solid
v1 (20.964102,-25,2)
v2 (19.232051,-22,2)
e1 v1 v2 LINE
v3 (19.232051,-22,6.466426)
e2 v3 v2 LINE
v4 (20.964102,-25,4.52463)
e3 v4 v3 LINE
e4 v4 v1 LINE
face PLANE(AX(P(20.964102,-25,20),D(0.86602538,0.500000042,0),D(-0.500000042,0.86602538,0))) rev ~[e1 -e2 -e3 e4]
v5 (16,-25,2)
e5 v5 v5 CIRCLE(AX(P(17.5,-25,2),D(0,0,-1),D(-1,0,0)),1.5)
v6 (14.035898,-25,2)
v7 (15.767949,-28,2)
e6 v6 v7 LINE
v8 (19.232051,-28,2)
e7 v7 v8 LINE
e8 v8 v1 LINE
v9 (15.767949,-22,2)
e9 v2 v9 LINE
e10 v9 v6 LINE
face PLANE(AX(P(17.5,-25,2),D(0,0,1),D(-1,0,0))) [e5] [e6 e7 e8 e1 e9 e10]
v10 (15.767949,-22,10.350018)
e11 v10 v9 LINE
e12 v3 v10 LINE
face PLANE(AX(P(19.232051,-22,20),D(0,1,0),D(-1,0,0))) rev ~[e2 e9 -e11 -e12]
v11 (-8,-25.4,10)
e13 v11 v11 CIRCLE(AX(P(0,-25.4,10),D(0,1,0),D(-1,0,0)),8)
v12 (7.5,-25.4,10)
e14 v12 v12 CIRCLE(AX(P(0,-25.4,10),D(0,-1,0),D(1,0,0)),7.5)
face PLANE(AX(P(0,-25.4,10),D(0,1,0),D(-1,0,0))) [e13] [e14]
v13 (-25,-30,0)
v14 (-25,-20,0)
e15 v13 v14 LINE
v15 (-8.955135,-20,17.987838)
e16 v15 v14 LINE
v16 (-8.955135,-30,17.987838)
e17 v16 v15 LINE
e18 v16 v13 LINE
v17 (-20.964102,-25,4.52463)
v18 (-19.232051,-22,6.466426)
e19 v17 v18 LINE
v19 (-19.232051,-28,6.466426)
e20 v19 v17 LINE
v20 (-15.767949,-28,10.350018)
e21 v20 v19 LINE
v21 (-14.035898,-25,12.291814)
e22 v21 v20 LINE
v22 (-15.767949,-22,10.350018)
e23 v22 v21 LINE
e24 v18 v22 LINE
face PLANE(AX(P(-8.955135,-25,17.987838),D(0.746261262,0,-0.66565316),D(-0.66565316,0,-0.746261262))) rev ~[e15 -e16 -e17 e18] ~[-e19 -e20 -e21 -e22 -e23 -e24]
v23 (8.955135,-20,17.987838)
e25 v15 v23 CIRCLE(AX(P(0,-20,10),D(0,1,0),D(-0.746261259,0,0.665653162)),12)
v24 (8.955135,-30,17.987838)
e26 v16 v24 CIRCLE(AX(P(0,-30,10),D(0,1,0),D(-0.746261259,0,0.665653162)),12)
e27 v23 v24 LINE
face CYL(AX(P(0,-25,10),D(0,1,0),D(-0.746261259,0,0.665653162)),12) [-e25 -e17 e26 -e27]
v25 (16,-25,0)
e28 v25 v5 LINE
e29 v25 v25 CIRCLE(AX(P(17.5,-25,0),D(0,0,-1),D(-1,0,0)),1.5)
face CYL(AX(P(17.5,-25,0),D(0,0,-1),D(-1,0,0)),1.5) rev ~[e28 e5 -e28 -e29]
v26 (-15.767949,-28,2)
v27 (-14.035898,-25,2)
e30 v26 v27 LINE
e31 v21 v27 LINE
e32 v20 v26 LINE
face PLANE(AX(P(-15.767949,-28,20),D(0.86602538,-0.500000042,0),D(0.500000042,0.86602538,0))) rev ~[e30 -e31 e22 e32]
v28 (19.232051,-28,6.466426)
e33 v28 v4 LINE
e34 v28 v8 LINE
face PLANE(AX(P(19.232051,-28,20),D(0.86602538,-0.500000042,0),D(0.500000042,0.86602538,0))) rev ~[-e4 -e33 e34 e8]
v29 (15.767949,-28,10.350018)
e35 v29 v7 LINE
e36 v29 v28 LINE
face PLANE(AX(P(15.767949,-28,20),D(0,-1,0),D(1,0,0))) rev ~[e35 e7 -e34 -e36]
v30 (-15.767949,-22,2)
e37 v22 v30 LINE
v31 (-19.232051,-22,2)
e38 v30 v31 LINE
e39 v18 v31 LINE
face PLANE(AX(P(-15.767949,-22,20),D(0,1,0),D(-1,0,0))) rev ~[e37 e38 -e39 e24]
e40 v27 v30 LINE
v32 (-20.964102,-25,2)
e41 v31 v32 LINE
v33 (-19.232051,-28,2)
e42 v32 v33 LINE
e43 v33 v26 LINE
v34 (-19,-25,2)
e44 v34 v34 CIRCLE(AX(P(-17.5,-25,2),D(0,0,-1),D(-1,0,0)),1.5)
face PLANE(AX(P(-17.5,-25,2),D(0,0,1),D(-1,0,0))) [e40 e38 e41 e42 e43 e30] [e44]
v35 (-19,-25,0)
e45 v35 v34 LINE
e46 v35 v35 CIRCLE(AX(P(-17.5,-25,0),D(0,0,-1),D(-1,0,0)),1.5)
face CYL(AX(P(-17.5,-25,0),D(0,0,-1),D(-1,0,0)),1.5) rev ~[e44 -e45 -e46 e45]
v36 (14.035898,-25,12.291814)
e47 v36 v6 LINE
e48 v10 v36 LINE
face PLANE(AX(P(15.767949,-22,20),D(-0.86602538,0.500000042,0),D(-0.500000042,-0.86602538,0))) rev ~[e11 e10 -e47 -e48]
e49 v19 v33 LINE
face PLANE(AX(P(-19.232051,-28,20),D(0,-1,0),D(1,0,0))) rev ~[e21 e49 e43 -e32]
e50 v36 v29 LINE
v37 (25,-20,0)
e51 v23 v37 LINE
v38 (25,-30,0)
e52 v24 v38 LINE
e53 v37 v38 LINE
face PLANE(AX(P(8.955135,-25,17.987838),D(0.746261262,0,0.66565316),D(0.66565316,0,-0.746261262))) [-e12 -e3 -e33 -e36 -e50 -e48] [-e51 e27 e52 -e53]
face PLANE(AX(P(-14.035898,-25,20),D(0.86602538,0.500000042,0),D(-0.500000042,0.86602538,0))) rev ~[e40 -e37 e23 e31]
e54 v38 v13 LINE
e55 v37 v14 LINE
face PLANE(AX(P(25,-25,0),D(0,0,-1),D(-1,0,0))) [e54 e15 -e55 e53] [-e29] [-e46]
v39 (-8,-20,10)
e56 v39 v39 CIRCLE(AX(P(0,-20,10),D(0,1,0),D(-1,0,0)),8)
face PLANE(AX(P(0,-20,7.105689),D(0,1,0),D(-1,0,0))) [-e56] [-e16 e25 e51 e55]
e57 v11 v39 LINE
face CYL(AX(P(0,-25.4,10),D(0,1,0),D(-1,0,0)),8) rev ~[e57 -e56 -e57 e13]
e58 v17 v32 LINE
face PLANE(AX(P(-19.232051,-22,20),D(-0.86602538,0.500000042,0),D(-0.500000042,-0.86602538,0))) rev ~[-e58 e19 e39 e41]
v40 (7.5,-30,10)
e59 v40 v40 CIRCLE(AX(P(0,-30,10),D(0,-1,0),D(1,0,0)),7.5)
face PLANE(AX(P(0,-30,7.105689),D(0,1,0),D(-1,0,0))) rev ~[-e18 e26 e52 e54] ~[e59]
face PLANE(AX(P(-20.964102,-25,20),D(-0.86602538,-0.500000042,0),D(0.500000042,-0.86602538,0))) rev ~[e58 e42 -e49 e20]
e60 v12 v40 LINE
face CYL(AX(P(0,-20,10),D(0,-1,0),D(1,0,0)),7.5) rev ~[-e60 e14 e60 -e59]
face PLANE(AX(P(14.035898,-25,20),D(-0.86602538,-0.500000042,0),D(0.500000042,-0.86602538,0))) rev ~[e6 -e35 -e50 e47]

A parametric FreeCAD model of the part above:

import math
import FreeCAD as App
import Part
import Sketcher
Q = App.Units.Quantity

doc = App.newDocument("Part")
body = doc.addObject("PartDesign::Body", "Body")

# Sketch on XZ plane
sketch1 = doc.addObject("Sketcher::SketchObject", "Sketch")
body.addObject(sketch1)
sketch1.AttachmentSupport = (doc.XZ_Plane, [""])
sketch1.MapMode = "FlatFace"
sketch1.addGeometry(Part.LineSegment(App.Vector(-25, 0, 0), App.Vector(25, 0, 0)), False)
sketch1.addGeometry(Part.LineSegment(App.Vector(25, 0, 0), App.Vector(8.955135, 17.987838, 0)), False)
sketch1.addGeometry(Part.ArcOfCircle(Part.Circle(App.Vector(0, 10, 0), App.Vector(0, 0, 1), 12), math.radians(41.732454), math.radians(138.267546)), False)
sketch1.addGeometry(Part.LineSegment(App.Vector(-8.955135, 17.987838, 0), App.Vector(-25, 0, 0)), False)
sketch1.addConstraint(Sketcher.Constraint("Coincident", 0, 2, 1, 1))
sketch1.addConstraint(Sketcher.Constraint("Tangent", 1, 2, 2, 1))
sketch1.addConstraint(Sketcher.Constraint("Tangent", 2, 2, 3, 1))
sketch1.addConstraint(Sketcher.Constraint("Coincident", 3, 2, 0, 1))
sketch1.addConstraint(Sketcher.Constraint("Horizontal", 0))
sketch1.addConstraint(Sketcher.Constraint("Symmetric", 0, 2, 3, 2, -1, 1))
sketch1.addConstraint(Sketcher.Constraint("PointOnObject", 2, 3, -2))
sketch1.addConstraint(Sketcher.Constraint("Radius", 2, Q("12 mm")))
sketch1.addConstraint(Sketcher.Constraint("DistanceX", 0, 1, 0, 2, Q("50 mm")))
sketch1.addConstraint(Sketcher.Constraint("DistanceY", -1, 1, 2, 3, Q("10 mm")))
pad1 = doc.addObject("PartDesign::Pad", "Pad")
body.addObject(pad1)
pad1.Profile = sketch1
pad1.Length = 10
pad1.Midplane = True

# Sketch on XZ plane
sketch2 = doc.addObject("Sketcher::SketchObject", "Sketch001")
body.addObject(sketch2)
sketch2.AttachmentSupport = (doc.XZ_Plane, [""])
sketch2.MapMode = "FlatFace"
sketch2.AttachmentOffset = App.Placement(App.Vector(0, 0, 5), App.Rotation())
sketch2.addGeometry(Part.Circle(App.Vector(0, 10, 0), App.Vector(0, 0, 1), 7.5), False)
sketch2.addConstraint(Sketcher.Constraint("PointOnObject", 0, 3, -2))
sketch2.addConstraint(Sketcher.Constraint("Diameter", 0, Q("15 mm")))
sketch2.addConstraint(Sketcher.Constraint("DistanceY", -1, 1, 0, 3, Q("10 mm")))
doc.recompute()
hole = doc.addObject("PartDesign::Hole", "Hole")
body.addObject(hole)
hole.Profile = sketch2
hole.ThreadType = "None"
hole.Diameter = 15
hole.DepthType = "ThroughAll"
hole.HoleCutType = "Counterbore"
hole.HoleCutDiameter = 16
hole.HoleCutDepth = 5.4

# Sketch on XY plane
sketch3 = doc.addObject("Sketcher::SketchObject", "Sketch002")
body.addObject(sketch3)
sketch3.AttachmentSupport = (doc.XY_Plane, [""])
sketch3.MapMode = "FlatFace"
sketch3.addGeometry(Part.Circle(App.Vector(-17.5, 0, 0), App.Vector(0, 0, 1), 1.5), False)
sketch3.addGeometry(Part.Circle(App.Vector(17.5, 0, 0), App.Vector(0, 0, 1), 1.5), False)
sketch3.addConstraint(Sketcher.Constraint("Equal", 0, 1))
sketch3.addConstraint(Sketcher.Constraint("Symmetric", 0, 3, 1, 3, -1, 1))
sketch3.addConstraint(Sketcher.Constraint("PointOnObject", 0, 3, -1))
sketch3.addConstraint(Sketcher.Constraint("Diameter", 0, Q("3 mm")))
sketch3.addConstraint(Sketcher.Constraint("DistanceX", 0, 3, 1, 3, Q("35 mm")))
pocket1 = doc.addObject("PartDesign::Pocket", "Pocket")
body.addObject(pocket1)
pocket1.Profile = sketch3
pocket1.Length = 25
pocket1.Reversed = True

# Sketch on XY plane
sketch4 = doc.addObject("Sketcher::SketchObject", "Sketch003")
body.addObject(sketch4)
sketch4.AttachmentSupport = (doc.XY_Plane, [""])
sketch4.MapMode = "FlatFace"
sketch4.AttachmentOffset = App.Placement(App.Vector(0, 0, 20), App.Rotation())
sketch4.addGeometry(Part.LineSegment(App.Vector(-15.767949, 3, 0), App.Vector(-19.232051, 3, 0)), False)
sketch4.addGeometry(Part.LineSegment(App.Vector(-19.232051, 3, 0), App.Vector(-20.964102, 0, 0)), False)
sketch4.addGeometry(Part.LineSegment(App.Vector(-20.964102, 0, 0), App.Vector(-19.232051, -3, 0)), False)
sketch4.addGeometry(Part.LineSegment(App.Vector(-19.232051, -3, 0), App.Vector(-15.767949, -3, 0)), False)
sketch4.addGeometry(Part.LineSegment(App.Vector(-15.767949, -3, 0), App.Vector(-14.035898, 0, 0)), False)
sketch4.addGeometry(Part.LineSegment(App.Vector(-14.035898, 0, 0), App.Vector(-15.767949, 3, 0)), False)
sketch4.addGeometry(Part.LineSegment(App.Vector(15.767949, 3, 0), App.Vector(14.035898, 0, 0)), False)
sketch4.addGeometry(Part.LineSegment(App.Vector(14.035898, 0, 0), App.Vector(15.767949, -3, 0)), False)
sketch4.addGeometry(Part.LineSegment(App.Vector(15.767949, -3, 0), App.Vector(19.232051, -3, 0)), False)
sketch4.addGeometry(Part.LineSegment(App.Vector(19.232051, -3, 0), App.Vector(20.964102, 0, 0)), False)
sketch4.addGeometry(Part.LineSegment(App.Vector(20.964102, 0, 0), App.Vector(19.232051, 3, 0)), False)
sketch4.addGeometry(Part.LineSegment(App.Vector(19.232051, 3, 0), App.Vector(15.767949, 3, 0)), False)
sketch4.addConstraint(Sketcher.Constraint("Coincident", 0, 2, 1, 1))
sketch4.addConstraint(Sketcher.Constraint("Coincident", 1, 2, 2, 1))
sketch4.addConstraint(Sketcher.Constraint("Coincident", 2, 2, 3, 1))
sketch4.addConstraint(Sketcher.Constraint("Coincident", 3, 2, 4, 1))
sketch4.addConstraint(Sketcher.Constraint("Coincident", 4, 2, 5, 1))
sketch4.addConstraint(Sketcher.Constraint("Coincident", 5, 2, 0, 1))
sketch4.addConstraint(Sketcher.Constraint("Coincident", 6, 2, 7, 1))
sketch4.addConstraint(Sketcher.Constraint("Coincident", 7, 2, 8, 1))
sketch4.addConstraint(Sketcher.Constraint("Coincident", 8, 2, 9, 1))
sketch4.addConstraint(Sketcher.Constraint("Coincident", 9, 2, 10, 1))
sketch4.addConstraint(Sketcher.Constraint("Coincident", 10, 2, 11, 1))
sketch4.addConstraint(Sketcher.Constraint("Coincident", 11, 2, 6, 1))
sketch4.addConstraint(Sketcher.Constraint("Horizontal", 0))
sketch4.addConstraint(Sketcher.Constraint("Horizontal", 3))
sketch4.addConstraint(Sketcher.Constraint("Horizontal", 8))
sketch4.addConstraint(Sketcher.Constraint("Horizontal", 11))
sketch4.addConstraint(Sketcher.Constraint("Symmetric", 4, 2, 6, 2, -1, 1))
sketch4.addConstraint(Sketcher.Constraint("Symmetric", 5, 2, 7, 2, -1, 1))
sketch4.addConstraint(Sketcher.Constraint("Symmetric", 1, 2, 9, 2, -1, 1))
sketch4.addConstraint(Sketcher.Constraint("Symmetric", 2, 2, 10, 2, -1, 1))
sketch4.addConstraint(Sketcher.Constraint("Symmetric", 3, 2, 7, 2, -2))
sketch4.addConstraint(Sketcher.Constraint("PointOnObject", 1, 2, -1))
sketch4.addConstraint(Sketcher.Constraint("PointOnObject", 4, 2, -1))
sketch4.addConstraint(Sketcher.Constraint("Parallel", 1, 4))
sketch4.addConstraint(Sketcher.Constraint("Parallel", 2, 5))
sketch4.addConstraint(Sketcher.Constraint("Parallel", 4, 6))
sketch4.addConstraint(Sketcher.Constraint("Parallel", 6, 9))
sketch4.addConstraint(Sketcher.Constraint("Angle", 1, Q("-120.000003 deg")))
sketch4.addConstraint(Sketcher.Constraint("DistanceY", -1, 1, 0, 2, Q("3 mm")))
sketch4.addConstraint(Sketcher.Constraint("DistanceX", 2, 2, 7, 2, Q("35 mm")))
sketch4.addConstraint(Sketcher.Constraint("DistanceX", 0, 2, 0, 1, Q("3.464102 mm")))
pocket2 = doc.addObject("PartDesign::Pocket", "Pocket001")
body.addObject(pocket2)
pocket2.Profile = sketch4
pocket2.Length = 18
body2 = doc.addObject("PartDesign::Body", "Body001")
doc.recompute()

body.Placement = App.Placement(App.Vector(0, 25, 0), App.Rotation(App.Vector(0, 0, 1), 0))
boolean = doc.addObject("PartDesign::Boolean", "Boolean")
body2.addObject(boolean)
boolean.Type = "Fuse"
boolean.addObjects([body])
body3 = doc.addObject("PartDesign::Body", "Body002")
doc.recompute()

body2.Placement = App.Placement(App.Vector(0, -25, 0), App.Rotation(App.Vector(0, 0, 1), 0))
boolean2 = doc.addObject("PartDesign::Boolean", "Boolean001")
body3.addObject(boolean2)
boolean2.Type = "Fuse"
boolean2.addObjects([body2])
body4 = doc.addObject("PartDesign::Body", "Body003")
doc.recompute()

body3.Placement = App.Placement(App.Vector(0, -25, 0), App.Rotation(App.Vector(0, 0, 1), 180))
boolean3 = doc.addObject("PartDesign::Boolean", "Boolean002")
body4.addObject(boolean3)
boolean3.Type = "Fuse"
boolean3.addObjects([body3])

doc.recompute()
